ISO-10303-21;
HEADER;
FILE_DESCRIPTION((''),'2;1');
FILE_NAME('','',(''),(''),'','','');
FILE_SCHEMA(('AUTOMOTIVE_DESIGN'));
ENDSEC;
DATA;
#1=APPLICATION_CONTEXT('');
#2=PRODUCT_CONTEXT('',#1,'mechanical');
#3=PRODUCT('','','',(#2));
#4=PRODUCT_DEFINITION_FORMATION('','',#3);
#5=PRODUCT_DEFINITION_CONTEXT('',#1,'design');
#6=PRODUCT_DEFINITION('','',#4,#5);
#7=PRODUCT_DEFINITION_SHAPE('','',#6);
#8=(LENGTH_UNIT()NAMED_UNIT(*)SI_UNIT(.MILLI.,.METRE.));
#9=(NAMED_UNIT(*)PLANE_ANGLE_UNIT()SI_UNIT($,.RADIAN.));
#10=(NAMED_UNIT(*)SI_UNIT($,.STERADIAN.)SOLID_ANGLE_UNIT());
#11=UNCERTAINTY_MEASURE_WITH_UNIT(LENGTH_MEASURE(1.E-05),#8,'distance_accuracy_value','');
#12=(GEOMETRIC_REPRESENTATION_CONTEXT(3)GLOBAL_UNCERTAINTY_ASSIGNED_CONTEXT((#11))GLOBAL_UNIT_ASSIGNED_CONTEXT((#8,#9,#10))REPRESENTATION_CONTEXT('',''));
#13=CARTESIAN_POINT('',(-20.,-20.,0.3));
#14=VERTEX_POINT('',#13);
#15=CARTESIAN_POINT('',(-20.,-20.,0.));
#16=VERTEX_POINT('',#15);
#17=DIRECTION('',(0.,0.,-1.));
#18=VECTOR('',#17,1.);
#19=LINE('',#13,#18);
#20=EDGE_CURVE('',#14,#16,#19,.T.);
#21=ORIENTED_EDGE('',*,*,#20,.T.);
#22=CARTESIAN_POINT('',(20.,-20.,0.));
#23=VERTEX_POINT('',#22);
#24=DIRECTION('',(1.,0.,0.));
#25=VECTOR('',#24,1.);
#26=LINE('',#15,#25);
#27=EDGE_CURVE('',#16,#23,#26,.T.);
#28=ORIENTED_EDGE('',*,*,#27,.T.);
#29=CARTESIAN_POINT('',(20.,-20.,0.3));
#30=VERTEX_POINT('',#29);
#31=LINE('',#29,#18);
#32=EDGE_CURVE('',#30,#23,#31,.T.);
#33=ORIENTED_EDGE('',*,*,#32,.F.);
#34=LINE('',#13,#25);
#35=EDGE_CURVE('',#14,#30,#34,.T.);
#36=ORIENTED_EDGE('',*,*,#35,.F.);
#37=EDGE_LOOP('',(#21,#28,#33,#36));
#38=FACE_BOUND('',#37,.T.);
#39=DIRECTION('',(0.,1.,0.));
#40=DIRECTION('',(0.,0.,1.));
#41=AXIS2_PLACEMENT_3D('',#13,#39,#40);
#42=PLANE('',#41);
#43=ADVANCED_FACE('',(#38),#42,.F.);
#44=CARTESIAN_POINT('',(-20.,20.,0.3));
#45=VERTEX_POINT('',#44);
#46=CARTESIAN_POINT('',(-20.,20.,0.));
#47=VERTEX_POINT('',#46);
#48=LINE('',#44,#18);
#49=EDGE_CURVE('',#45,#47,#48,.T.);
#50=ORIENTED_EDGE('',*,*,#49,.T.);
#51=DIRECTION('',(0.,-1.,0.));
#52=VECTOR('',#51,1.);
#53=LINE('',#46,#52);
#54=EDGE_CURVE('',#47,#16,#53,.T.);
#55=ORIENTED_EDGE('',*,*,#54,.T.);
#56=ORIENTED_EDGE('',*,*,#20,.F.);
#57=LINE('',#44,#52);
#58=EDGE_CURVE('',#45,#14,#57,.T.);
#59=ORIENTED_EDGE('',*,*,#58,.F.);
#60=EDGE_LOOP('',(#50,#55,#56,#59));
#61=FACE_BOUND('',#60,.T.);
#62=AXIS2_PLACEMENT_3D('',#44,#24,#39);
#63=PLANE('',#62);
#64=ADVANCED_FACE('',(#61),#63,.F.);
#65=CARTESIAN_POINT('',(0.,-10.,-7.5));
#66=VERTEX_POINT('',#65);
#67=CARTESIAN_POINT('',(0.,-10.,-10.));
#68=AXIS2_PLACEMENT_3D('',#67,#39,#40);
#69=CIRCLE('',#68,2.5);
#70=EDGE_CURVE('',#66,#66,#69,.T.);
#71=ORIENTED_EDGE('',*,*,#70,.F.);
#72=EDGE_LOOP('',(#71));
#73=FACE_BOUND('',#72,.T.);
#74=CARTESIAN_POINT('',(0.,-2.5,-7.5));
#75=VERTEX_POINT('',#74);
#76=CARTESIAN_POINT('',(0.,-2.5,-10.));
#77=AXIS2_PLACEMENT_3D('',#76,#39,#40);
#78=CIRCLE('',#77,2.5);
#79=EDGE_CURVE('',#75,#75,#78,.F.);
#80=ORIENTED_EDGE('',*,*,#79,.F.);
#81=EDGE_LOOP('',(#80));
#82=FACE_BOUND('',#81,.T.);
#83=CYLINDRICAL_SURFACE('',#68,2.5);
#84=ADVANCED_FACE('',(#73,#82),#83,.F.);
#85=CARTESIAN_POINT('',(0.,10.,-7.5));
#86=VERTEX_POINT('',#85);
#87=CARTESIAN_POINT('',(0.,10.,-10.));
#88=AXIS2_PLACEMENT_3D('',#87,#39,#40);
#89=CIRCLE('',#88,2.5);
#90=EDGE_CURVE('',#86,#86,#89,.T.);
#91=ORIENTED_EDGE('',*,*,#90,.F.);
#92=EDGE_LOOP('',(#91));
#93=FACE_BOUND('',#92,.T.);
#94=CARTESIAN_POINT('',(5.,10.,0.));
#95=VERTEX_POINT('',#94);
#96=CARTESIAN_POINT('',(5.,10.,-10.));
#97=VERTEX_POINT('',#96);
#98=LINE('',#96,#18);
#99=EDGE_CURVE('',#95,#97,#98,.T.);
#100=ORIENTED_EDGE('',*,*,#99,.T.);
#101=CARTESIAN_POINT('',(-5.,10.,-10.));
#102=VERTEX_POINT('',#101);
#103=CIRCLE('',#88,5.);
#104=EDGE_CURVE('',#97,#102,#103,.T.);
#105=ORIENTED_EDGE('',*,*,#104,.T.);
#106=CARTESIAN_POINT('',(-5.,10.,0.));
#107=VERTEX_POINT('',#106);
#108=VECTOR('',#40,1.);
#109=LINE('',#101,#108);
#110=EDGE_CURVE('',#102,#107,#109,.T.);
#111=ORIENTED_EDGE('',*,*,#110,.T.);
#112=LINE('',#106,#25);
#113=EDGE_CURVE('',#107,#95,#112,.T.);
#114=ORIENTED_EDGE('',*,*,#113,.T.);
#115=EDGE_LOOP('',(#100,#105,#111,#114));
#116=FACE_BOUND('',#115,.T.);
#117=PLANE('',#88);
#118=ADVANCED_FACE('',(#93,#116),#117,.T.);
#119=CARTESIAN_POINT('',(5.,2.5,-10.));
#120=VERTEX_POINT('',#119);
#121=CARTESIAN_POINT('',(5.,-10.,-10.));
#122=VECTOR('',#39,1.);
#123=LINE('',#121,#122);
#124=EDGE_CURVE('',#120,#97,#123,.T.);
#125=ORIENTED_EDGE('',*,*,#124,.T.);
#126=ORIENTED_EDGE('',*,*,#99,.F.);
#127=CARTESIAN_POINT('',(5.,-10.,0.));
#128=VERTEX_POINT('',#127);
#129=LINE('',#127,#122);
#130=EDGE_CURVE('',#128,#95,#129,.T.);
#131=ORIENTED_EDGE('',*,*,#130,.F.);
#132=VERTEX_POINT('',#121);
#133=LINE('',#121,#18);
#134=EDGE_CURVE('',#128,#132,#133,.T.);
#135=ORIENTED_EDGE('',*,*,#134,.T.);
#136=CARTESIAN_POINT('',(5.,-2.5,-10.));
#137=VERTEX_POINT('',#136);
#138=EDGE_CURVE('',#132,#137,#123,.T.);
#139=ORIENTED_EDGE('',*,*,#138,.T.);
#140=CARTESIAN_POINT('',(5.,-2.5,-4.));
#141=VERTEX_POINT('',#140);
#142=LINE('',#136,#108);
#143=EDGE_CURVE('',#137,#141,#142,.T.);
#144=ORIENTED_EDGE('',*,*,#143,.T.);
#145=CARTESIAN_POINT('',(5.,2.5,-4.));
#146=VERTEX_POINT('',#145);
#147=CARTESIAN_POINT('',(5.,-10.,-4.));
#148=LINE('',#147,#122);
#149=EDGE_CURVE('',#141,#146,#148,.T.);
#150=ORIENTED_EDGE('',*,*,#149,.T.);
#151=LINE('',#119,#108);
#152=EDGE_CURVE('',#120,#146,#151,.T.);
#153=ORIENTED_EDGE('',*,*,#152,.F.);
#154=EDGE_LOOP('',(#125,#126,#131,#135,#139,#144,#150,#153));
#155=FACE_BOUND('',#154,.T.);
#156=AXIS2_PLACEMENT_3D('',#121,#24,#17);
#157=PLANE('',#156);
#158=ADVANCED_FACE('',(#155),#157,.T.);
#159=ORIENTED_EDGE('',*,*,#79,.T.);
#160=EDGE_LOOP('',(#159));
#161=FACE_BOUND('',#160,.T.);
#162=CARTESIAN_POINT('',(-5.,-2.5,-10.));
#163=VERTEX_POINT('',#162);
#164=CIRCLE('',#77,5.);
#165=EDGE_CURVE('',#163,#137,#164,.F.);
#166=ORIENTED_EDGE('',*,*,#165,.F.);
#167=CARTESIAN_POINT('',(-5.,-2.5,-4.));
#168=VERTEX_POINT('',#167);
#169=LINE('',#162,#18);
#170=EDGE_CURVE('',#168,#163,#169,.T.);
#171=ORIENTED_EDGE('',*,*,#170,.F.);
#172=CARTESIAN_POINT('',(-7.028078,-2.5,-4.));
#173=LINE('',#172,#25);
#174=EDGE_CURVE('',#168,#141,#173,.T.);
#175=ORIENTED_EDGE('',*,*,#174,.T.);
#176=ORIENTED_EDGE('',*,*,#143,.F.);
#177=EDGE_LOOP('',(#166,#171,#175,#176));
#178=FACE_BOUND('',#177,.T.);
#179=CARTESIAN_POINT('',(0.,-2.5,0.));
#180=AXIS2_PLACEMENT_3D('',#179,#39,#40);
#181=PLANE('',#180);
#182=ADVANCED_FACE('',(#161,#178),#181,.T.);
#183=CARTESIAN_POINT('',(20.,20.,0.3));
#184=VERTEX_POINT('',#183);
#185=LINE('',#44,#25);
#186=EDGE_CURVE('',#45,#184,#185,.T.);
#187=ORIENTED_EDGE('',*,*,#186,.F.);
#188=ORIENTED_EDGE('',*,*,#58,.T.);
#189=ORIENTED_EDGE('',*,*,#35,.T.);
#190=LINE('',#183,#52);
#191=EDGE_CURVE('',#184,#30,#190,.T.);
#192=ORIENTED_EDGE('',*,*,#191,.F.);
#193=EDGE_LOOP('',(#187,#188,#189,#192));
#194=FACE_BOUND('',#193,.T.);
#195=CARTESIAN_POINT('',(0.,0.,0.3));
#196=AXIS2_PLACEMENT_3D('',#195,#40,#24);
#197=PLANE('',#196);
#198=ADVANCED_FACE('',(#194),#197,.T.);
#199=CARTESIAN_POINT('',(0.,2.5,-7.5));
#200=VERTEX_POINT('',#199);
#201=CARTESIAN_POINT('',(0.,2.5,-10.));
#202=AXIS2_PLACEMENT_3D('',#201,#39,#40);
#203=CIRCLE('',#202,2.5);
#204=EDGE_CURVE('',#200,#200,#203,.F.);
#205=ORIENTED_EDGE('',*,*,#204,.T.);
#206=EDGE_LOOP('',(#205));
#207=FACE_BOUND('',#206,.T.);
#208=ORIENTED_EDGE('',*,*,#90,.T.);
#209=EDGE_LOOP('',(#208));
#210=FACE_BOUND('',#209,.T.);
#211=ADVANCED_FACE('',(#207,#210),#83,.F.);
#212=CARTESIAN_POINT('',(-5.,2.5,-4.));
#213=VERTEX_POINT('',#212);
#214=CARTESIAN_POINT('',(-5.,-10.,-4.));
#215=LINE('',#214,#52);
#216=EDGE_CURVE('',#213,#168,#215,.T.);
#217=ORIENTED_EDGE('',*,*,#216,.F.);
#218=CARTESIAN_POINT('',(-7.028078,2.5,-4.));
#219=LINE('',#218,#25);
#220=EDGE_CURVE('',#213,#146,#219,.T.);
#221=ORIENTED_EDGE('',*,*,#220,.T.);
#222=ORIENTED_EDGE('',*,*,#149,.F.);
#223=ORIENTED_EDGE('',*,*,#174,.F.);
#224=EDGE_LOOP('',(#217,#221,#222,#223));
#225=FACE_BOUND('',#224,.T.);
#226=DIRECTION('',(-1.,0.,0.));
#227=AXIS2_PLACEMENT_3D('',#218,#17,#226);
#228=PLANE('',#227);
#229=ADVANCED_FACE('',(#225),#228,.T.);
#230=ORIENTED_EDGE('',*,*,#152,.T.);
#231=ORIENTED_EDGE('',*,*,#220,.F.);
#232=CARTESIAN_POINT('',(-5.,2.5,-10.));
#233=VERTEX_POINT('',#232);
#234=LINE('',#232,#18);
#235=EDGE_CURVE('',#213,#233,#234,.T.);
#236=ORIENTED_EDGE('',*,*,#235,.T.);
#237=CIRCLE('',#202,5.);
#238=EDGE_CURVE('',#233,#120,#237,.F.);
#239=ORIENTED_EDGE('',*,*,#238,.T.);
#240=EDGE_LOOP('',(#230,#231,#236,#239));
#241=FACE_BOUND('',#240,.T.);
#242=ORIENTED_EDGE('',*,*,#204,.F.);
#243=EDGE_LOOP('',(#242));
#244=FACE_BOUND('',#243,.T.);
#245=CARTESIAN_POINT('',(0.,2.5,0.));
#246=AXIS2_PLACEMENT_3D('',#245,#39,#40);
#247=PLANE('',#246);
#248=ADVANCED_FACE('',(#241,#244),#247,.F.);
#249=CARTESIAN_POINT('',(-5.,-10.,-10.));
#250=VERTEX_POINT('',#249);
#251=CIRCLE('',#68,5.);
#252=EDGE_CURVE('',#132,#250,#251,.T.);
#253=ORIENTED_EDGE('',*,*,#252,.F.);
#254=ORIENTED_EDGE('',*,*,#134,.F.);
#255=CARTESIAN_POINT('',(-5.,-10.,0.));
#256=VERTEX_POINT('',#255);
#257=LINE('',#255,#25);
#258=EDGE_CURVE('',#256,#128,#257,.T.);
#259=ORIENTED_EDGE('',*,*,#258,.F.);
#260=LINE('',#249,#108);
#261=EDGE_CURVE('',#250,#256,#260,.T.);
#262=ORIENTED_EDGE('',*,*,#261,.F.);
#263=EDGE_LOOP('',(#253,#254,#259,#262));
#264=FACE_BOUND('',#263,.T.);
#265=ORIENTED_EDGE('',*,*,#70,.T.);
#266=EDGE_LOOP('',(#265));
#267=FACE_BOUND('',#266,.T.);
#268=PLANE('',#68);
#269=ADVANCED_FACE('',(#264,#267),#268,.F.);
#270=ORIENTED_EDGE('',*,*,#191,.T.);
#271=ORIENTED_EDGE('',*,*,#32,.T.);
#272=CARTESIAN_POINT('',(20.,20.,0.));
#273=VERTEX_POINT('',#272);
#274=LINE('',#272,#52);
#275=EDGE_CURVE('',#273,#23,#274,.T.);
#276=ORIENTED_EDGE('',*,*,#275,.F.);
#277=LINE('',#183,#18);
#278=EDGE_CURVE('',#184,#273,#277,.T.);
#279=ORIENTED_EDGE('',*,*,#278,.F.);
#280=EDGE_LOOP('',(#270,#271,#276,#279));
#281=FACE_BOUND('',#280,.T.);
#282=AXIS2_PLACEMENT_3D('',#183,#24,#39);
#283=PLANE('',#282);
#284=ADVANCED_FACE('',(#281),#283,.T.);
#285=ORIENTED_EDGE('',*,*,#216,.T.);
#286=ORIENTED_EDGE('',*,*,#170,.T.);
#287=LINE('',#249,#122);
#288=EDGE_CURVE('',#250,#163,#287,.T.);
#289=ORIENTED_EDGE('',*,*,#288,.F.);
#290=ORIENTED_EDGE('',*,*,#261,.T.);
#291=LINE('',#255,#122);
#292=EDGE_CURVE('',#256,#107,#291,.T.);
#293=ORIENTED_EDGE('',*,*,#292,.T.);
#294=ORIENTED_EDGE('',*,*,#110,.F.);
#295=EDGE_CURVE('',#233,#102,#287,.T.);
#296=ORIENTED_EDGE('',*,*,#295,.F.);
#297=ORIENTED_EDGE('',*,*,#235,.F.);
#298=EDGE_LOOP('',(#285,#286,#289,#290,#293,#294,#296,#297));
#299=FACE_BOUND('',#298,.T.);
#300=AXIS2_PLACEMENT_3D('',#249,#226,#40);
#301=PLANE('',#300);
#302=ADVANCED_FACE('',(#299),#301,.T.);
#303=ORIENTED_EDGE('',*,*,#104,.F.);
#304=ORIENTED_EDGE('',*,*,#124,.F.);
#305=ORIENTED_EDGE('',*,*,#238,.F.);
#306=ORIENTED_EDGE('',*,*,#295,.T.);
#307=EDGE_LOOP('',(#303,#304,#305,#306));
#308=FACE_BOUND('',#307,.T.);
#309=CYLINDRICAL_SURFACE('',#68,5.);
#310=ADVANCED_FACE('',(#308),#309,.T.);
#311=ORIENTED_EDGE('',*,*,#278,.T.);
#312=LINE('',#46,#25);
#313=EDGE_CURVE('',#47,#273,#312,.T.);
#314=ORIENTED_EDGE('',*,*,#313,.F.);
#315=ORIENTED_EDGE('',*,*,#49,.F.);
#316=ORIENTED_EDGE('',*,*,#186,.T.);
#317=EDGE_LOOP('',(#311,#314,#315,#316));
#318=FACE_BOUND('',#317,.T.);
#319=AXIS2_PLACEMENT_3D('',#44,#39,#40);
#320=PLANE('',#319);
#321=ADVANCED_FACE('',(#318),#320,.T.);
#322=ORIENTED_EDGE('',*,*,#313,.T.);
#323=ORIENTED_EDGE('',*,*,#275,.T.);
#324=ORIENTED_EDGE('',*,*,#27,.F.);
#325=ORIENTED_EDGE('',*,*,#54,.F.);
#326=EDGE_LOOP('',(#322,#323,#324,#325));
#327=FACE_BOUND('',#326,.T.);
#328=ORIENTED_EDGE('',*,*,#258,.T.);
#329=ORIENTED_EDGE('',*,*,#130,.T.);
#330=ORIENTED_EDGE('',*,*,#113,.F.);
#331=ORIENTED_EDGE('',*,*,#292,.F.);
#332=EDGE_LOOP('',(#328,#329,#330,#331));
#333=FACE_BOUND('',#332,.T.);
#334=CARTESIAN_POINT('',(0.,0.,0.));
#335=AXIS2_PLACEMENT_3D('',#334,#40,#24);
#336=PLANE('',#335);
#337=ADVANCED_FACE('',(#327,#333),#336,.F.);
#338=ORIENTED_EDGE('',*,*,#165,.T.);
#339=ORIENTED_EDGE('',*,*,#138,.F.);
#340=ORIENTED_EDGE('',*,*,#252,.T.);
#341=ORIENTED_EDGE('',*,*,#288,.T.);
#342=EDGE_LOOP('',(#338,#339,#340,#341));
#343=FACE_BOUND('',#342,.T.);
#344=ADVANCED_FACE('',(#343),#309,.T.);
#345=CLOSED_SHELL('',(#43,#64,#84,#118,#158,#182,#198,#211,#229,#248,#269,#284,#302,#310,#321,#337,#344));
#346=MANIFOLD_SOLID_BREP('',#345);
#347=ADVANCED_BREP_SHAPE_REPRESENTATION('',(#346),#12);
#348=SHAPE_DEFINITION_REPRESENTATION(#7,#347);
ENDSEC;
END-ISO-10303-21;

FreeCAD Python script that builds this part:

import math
import FreeCAD as App
import Part
import Sketcher
from FreeCAD import Vector


def add_polygon(sketch, points):
    """Adds a closed chain of lines whose ends are joined by coincident constraints."""
    first, n = sketch.GeometryCount, len(points)
    for a, b in zip(points, points[1:] + points[:1]):
        sketch.addGeometry(Part.LineSegment(App.Vector(*a, 0), App.Vector(*b, 0)), False)
    for i in range(n):
        sketch.addConstraint(Sketcher.Constraint("Coincident", first + i, 2, first + (i + 1) % n, 1))

doc = App.newDocument("Part")
body = doc.addObject("PartDesign::Body", "Body")

# Sketch on XY plane
sketch1 = doc.addObject("Sketcher::SketchObject", "Sketch")
body.addObject(sketch1)
sketch1.AttachmentSupport = (doc.XY_Plane, [""])
sketch1.MapMode = "FlatFace"
add_polygon(sketch1, [(-20, 20), (-20, -20), (20, -20), (20, 20)])  # lines 0-3
sketch1.addConstraint([
    Sketcher.Constraint("Vertical", 0),
    Sketcher.Constraint("Horizontal", 1),
    Sketcher.Constraint("Vertical", 2),
    Sketcher.Constraint("Horizontal", 3),
    Sketcher.Constraint("Symmetric", 0, 2, 2, 2, -1, 1),
    Sketcher.Constraint("Equal", 3, 0),
    Sketcher.Constraint("DistanceX", 1, 1, 1, 2, 40.0),
])
pad1 = doc.addObject("PartDesign::Pad", "Pad")
body.addObject(pad1)
pad1.Profile = sketch1
pad1.Length = 0.3

# Sketch on XZ plane
sketch2 = doc.addObject("Sketcher::SketchObject", "Sketch001")
body.addObject(sketch2)
sketch2.AttachmentSupport = (doc.XZ_Plane, [""])
sketch2.MapMode = "FlatFace"
sketch2.addGeometry([
    Part.LineSegment(Vector(-5, -10, 0), Vector(-5, 0, 0)),  # 0
    Part.LineSegment(Vector(-5, 0, 0), Vector(5, 0, 0)),  # 1
    Part.LineSegment(Vector(5, 0, 0), Vector(5, -10, 0)),  # 2
    Part.ArcOfCircle(Part.Circle(Vector(0, -10, 0), Vector(0, 0, 1), 5), math.radians(180), math.radians(360)),  # 3
    Part.Circle(Vector(0, -10, 0), Vector(0, 0, 1), 2.5),  # 4
], False)
sketch2.addConstraint([
    Sketcher.Constraint("Coincident", 0, 2, 1, 1),
    Sketcher.Constraint("Coincident", 1, 2, 2, 1),
    Sketcher.Constraint("Tangent", 2, 2, 3, 2),
    Sketcher.Constraint("Tangent", 3, 1, 0, 1),
    Sketcher.Constraint("Vertical", 0),
    Sketcher.Constraint("Horizontal", 1),
    Sketcher.Constraint("Vertical", 2),
    Sketcher.Constraint("Coincident", 4, 3, 3, 3),
    Sketcher.Constraint("Symmetric", 0, 2, 1, 2, -1, 1),
    Sketcher.Constraint("Equal", 1, 0),
    Sketcher.Constraint("Diameter", 4, 5.0),
    Sketcher.Constraint("Radius", 3, 5.0),
])
pad2 = doc.addObject("PartDesign::Pad", "Pad001")
body.addObject(pad2)
pad2.Profile = sketch2
pad2.Type = "TwoLengths"
pad2.Length = 10
pad2.Length2 = 10
pad2.Reversed = True

# Sketch on XZ plane
sketch3 = doc.addObject("Sketcher::SketchObject", "Sketch002")
body.addObject(sketch3)
sketch3.AttachmentSupport = (doc.XZ_Plane, [""])
sketch3.MapMode = "FlatFace"
add_polygon(sketch3, [(-7.028078, -16), (-7.028078, -4), (7.028078, -4), (7.028078, -16)])  # lines 0-3
sketch3.addConstraint([
    Sketcher.Constraint("Vertical", 0),
    Sketcher.Constraint("Horizontal", 1),
    Sketcher.Constraint("Vertical", 2),
    Sketcher.Constraint("Horizontal", 3),
    Sketcher.Constraint("DistanceY", 0, 1, 0, 2, 12.0),
    Sketcher.Constraint("DistanceY", 0, 2, -1, 1, 4.0),
    Sketcher.Constraint("DistanceX", 1, 1, 1, 2, 14.056155),
    Sketcher.Constraint("DistanceX", 0, 2, -1, 1, 7.028078),
])
pocket1 = doc.addObject("PartDesign::Pocket", "Pocket")
body.addObject(pocket1)
pocket1.Profile = sketch3
pocket1.Type = "TwoLengths"
pocket1.Length = 2.5
pocket1.Length2 = 2.5

doc.recompute()
